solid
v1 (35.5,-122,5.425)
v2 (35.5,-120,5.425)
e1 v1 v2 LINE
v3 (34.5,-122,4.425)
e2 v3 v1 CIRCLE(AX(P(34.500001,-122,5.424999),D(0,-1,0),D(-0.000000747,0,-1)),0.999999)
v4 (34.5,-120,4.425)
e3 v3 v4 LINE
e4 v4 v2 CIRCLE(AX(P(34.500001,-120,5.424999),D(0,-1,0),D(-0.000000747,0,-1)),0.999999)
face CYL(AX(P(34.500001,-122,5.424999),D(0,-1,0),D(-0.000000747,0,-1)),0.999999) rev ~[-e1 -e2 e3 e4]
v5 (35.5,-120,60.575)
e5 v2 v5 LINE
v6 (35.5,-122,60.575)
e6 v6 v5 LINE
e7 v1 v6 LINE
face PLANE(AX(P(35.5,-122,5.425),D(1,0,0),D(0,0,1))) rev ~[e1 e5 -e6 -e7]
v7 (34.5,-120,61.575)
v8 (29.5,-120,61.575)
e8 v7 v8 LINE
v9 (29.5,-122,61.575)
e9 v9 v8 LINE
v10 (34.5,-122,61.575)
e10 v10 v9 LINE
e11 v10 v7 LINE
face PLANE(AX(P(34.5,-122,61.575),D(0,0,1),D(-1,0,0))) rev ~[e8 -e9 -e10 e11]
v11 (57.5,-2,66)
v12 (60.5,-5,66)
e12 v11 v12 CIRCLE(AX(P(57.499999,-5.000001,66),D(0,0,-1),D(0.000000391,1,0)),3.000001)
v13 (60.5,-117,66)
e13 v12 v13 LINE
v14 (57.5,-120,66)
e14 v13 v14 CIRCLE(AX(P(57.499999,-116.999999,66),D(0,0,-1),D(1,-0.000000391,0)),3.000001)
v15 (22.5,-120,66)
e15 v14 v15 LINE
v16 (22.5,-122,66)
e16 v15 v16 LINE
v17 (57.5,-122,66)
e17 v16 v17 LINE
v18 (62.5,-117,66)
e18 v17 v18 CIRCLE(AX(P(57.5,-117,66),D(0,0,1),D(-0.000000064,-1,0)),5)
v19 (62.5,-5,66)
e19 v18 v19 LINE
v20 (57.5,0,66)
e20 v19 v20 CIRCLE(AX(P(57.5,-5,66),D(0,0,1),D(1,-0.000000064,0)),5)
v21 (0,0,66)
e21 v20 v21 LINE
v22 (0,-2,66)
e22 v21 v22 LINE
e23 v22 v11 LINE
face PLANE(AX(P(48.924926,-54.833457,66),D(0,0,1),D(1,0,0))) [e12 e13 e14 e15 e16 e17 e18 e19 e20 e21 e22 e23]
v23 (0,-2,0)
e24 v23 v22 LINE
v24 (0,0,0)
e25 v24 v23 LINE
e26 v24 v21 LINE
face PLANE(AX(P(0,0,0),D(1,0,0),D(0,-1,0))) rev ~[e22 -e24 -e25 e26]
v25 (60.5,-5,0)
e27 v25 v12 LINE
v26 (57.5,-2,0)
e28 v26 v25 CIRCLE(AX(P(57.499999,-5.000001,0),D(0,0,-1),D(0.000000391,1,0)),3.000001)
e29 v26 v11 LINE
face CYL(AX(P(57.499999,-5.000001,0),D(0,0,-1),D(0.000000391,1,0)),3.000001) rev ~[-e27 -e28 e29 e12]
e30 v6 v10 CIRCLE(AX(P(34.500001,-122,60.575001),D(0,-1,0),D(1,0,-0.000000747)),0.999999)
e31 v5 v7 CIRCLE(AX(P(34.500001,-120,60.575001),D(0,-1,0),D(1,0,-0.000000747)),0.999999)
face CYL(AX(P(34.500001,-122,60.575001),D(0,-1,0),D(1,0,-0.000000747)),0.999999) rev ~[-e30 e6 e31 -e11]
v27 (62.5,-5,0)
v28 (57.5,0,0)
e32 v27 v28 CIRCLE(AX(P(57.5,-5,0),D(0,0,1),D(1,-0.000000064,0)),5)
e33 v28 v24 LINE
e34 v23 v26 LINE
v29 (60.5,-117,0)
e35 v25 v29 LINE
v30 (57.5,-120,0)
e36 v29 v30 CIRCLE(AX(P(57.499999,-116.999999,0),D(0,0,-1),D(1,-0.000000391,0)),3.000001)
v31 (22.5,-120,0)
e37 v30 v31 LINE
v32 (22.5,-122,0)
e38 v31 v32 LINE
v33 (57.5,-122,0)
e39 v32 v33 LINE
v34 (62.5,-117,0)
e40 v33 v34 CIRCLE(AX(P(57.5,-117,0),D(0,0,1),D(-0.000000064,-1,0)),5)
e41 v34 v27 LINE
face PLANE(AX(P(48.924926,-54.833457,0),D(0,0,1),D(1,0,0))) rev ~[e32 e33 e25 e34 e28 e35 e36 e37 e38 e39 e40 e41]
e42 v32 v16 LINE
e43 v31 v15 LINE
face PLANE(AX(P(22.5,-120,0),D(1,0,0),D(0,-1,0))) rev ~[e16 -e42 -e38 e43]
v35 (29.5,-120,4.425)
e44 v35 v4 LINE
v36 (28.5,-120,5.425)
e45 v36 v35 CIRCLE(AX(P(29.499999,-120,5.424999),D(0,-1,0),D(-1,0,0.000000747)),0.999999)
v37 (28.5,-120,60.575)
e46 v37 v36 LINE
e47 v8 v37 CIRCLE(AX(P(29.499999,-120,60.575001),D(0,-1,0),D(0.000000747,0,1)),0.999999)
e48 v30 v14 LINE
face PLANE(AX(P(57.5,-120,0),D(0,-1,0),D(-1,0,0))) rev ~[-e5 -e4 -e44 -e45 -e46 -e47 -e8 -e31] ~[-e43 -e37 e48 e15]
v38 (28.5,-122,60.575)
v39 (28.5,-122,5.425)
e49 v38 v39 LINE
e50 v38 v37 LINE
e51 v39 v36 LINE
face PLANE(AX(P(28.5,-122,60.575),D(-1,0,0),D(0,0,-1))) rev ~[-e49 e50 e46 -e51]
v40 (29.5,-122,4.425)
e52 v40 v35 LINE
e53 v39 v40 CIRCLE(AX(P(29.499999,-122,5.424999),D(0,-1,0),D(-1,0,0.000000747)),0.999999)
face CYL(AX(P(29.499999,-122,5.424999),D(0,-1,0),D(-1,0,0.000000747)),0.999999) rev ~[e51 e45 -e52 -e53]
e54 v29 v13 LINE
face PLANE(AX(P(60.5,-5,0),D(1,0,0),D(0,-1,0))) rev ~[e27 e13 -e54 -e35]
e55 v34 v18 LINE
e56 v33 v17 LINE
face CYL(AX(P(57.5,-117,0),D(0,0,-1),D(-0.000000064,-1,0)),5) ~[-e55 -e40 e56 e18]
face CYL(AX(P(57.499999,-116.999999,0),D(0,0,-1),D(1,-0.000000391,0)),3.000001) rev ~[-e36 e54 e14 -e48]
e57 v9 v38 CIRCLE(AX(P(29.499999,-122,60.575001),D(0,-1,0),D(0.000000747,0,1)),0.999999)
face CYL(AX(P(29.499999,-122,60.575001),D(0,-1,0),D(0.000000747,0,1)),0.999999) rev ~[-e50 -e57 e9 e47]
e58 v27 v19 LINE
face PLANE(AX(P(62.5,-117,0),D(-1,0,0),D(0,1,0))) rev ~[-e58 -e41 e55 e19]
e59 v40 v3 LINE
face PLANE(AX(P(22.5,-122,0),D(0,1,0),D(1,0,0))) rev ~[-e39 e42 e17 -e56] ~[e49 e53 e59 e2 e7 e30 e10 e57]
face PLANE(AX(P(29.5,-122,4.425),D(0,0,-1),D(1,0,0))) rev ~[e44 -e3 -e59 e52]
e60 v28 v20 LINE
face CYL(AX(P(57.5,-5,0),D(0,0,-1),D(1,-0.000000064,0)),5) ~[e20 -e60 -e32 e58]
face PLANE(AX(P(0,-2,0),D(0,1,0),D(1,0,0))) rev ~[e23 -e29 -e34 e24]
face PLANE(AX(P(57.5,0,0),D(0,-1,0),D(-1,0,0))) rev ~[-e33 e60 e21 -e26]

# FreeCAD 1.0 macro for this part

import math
import FreeCAD as App
import Part
import Sketcher

doc = App.newDocument("Part")
body = doc.addObject("PartDesign::Body", "Body")

sketch1 = body.newObject("Sketcher::SketchObject", "Sketch")
sketch1.AttachmentSupport = (doc.getObject("XY_Plane"), [""])
sketch1.MapMode = "FlatFace"
sketch1.addGeometry([
    Part.LineSegment(App.Vector(57.5, 0, 0), App.Vector(0, 0, 0)),
    Part.LineSegment(App.Vector(0, 0, 0), App.Vector(0, -2, 0)),
    Part.LineSegment(App.Vector(0, -2, 0), App.Vector(57.5, -2, 0)),
    Part.ArcOfCircle(Part.Circle(App.Vector(57.5, -5, 0), App.Vector(0, 0, 1), 3), math.radians(0), math.radians(90)),
    Part.LineSegment(App.Vector(60.5, -5, 0), App.Vector(60.5, -117, 0)),
    Part.ArcOfCircle(Part.Circle(App.Vector(57.5, -117, 0), App.Vector(0, 0, 1), 3), math.radians(-90), math.radians(0)),
    Part.LineSegment(App.Vector(57.5, -120, 0), App.Vector(22.5, -120, 0)),
    Part.LineSegment(App.Vector(22.5, -120, 0), App.Vector(22.5, -122, 0)),
    Part.LineSegment(App.Vector(22.5, -122, 0), App.Vector(57.5, -122, 0)),
    Part.ArcOfCircle(Part.Circle(App.Vector(57.5, -117, 0), App.Vector(0, 0, 1), 5), math.radians(-90), math.radians(0)),
    Part.LineSegment(App.Vector(62.5, -117, 0), App.Vector(62.5, -5, 0)),
    Part.ArcOfCircle(Part.Circle(App.Vector(57.5, -5, 0), App.Vector(0, 0, 1), 5), math.radians(0), math.radians(90)),
], False)
sketch1.addConstraint([
    Sketcher.Constraint("Coincident", 0, 2, 1, 1),
    Sketcher.Constraint("Coincident", 1, 2, 2, 1),
    Sketcher.Constraint("Tangent", 2, 2, 3, 2),
    Sketcher.Constraint("Tangent", 3, 1, 4, 1),
    Sketcher.Constraint("Tangent", 4, 2, 5, 2),
    Sketcher.Constraint("Tangent", 5, 1, 6, 1),
    Sketcher.Constraint("Coincident", 6, 2, 7, 1),
    Sketcher.Constraint("Coincident", 7, 2, 8, 1),
    Sketcher.Constraint("Tangent", 8, 2, 9, 1),
    Sketcher.Constraint("Tangent", 9, 2, 10, 1),
    Sketcher.Constraint("Tangent", 10, 2, 11, 1),
    Sketcher.Constraint("Tangent", 11, 2, 0, 1),
    Sketcher.Constraint("Horizontal", 0),
    Sketcher.Constraint("Vertical", 1),
    Sketcher.Constraint("Horizontal", 2),
    Sketcher.Constraint("Vertical", 4),
    Sketcher.Constraint("Horizontal", 6),
    Sketcher.Constraint("Vertical", 7),
    Sketcher.Constraint("Horizontal", 8),
    Sketcher.Constraint("Vertical", 10),
    Sketcher.Constraint("Coincident", 0, 2, -1, 1),
    Sketcher.Constraint("Coincident", 9, 3, 5, 3),
    Sketcher.Constraint("Coincident", 11, 3, 3, 3),
    Sketcher.Constraint("Equal", 3, 5),
    Sketcher.Constraint("Radius", 3, 3.000001),
    Sketcher.Constraint("Radius", 9, 5.0),
    Sketcher.Constraint("DistanceX", 6, 2, 6, 1, 35.0),
    Sketcher.Constraint("DistanceY", 4, 2, 4, 1, 112.0),
    Sketcher.Constraint("DistanceX", 0, 2, 0, 1, 57.5),
])
pad1 = body.newObject("PartDesign::Pad", "Pad")
pad1.Profile = sketch1
pad1.Length = 66

sketch2 = body.newObject("Sketcher::SketchObject", "Sketch001")
sketch2.AttachmentSupport = (doc.getObject("XZ_Plane"), [""])
sketch2.MapMode = "FlatFace"
sketch2.AttachmentOffset = App.Placement(App.Vector(0, 0, 122), App.Rotation())
sketch2.addGeometry([
    Part.LineSegment(App.Vector(34.5, 61.6, 0), App.Vector(29.5, 61.6, 0)),
    Part.ArcOfCircle(Part.Circle(App.Vector(29.5, 60.6, 0), App.Vector(0, 0, 1), 1), math.radians(90), math.radians(180)),
    Part.LineSegment(App.Vector(28.5, 60.6, 0), App.Vector(28.5, 5.4, 0)),
    Part.ArcOfCircle(Part.Circle(App.Vector(29.5, 5.4, 0), App.Vector(0, 0, 1), 1), math.radians(180), math.radians(270)),
    Part.LineSegment(App.Vector(29.5, 4.4, 0), App.Vector(34.5, 4.4, 0)),
    Part.ArcOfCircle(Part.Circle(App.Vector(34.5, 5.4, 0), App.Vector(0, 0, 1), 1), math.radians(-90), math.radians(0)),
    Part.LineSegment(App.Vector(35.5, 5.4, 0), App.Vector(35.5, 60.6, 0)),
    Part.ArcOfCircle(Part.Circle(App.Vector(34.5, 60.6, 0), App.Vector(0, 0, 1), 1), math.radians(0), math.radians(90)),
], False)
sketch2.addConstraint([
    Sketcher.Constraint("Tangent", 0, 2, 1, 1),
    Sketcher.Constraint("Tangent", 1, 2, 2, 1),
    Sketcher.Constraint("Tangent", 2, 2, 3, 1),
    Sketcher.Constraint("Tangent", 3, 2, 4, 1),
    Sketcher.Constraint("Tangent", 4, 2, 5, 1),
    Sketcher.Constraint("Tangent", 5, 2, 6, 1),
    Sketcher.Constraint("Tangent", 6, 2, 7, 1),
    Sketcher.Constraint("Tangent", 7, 2, 0, 1),
    Sketcher.Constraint("Horizontal", 0),
    Sketcher.Constraint("Vertical", 2),
    Sketcher.Constraint("Horizontal", 4),
    Sketcher.Constraint("Vertical", 6),
    Sketcher.Constraint("Equal", 1, 3),
    Sketcher.Constraint("Equal", 3, 5),
    Sketcher.Constraint("Equal", 5, 7),
    Sketcher.Constraint("Radius", 1, 0.999999),
    Sketcher.Constraint("DistanceX", 0, 2, 0, 1, 5.0),
    Sketcher.Constraint("DistanceY", 2, 2, 2, 1, 55.15),
    Sketcher.Constraint("DistanceX", -1, 1, 1, 3, 29.499999),
    Sketcher.Constraint("DistanceY", -1, 1, 1, 3, 60.575001),
])
pocket1 = body.newObject("PartDesign::Pocket", "Pocket")
pocket1.Profile = sketch2
pocket1.Length = 25

doc.recompute()
